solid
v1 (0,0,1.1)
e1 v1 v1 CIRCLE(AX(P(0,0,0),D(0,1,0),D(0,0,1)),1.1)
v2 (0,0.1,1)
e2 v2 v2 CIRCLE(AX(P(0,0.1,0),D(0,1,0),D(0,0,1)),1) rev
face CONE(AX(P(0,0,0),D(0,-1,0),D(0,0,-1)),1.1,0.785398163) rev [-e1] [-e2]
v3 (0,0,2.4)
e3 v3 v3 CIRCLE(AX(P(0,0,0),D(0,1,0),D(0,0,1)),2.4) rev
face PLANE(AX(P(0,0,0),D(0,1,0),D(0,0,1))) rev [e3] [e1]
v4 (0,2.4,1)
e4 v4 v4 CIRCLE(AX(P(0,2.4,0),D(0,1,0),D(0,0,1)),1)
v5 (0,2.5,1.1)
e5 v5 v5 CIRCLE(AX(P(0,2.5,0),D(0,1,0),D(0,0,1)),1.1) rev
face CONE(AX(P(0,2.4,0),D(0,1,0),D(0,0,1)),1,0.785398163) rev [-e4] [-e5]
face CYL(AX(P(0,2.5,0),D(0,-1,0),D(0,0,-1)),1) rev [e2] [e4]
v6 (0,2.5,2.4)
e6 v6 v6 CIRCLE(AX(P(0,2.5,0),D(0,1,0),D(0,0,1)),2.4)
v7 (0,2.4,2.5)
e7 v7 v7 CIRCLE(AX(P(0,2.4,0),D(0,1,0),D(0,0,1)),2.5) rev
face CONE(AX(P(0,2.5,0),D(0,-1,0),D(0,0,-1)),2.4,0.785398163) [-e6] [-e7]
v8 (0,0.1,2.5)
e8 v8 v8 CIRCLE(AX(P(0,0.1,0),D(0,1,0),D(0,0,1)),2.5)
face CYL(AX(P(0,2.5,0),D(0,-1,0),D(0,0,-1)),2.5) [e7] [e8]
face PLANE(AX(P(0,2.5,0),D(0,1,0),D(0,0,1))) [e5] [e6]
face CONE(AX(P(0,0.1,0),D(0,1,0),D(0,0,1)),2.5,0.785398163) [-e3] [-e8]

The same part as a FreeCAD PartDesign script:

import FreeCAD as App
import Part
import Sketcher

V = App.Vector
Q = App.Units.Quantity


def edges_at(feature, points):
    """Names of the edges that pass closest to the given points."""
    edges = feature.Shape.Edges
    near = lambda p: min(range(len(edges)), key=lambda i: edges[i].distToShape(Part.Vertex(*p))[0])
    return sorted({f"Edge{near(p) + 1}" for p in points})

doc = App.newDocument("Part")
params = doc.addObject("Spreadsheet::Sheet", "Params")
for row, (alias, value) in enumerate([
    ("sketch1_diameter", "5 mm"),
    ("sketch1_diameter2", "2 mm"),
    ("pad1_length", "2.5 mm"),
    ("chamfer_size", "0.1 mm"),
], start=1):
    params.set(f"A{row}", alias)
    params.set(f"B{row}", "=" + value)
    params.setAlias(f"B{row}", alias)

body = doc.addObject("PartDesign::Body", "Body")

sketch1 = body.newObject("Sketcher::SketchObject", "Sketch")
sketch1.AttachmentSupport = (doc.getObject("XZ_Plane"), [""])
sketch1.MapMode = "FlatFace"
sketch1.addGeometry(Part.Circle(V(0, 0, 0), V(0, 0, 1), 2.5), False)
sketch1.addGeometry(Part.Circle(V(0, 0, 0), V(0, 0, 1), 1), False)
sketch1.addConstraint(Sketcher.Constraint("Coincident", 0, 3, -1, 1))
sketch1.addConstraint(Sketcher.Constraint("Coincident", 1, 3, -1, 1))
sketch1.addConstraint(Sketcher.Constraint("Diameter", 0, Q("5 mm")))
sketch1.addConstraint(Sketcher.Constraint("Diameter", 1, Q("2 mm")))
sketch1.setExpression("Constraints[2]", "Params.sketch1_diameter")
sketch1.setExpression("Constraints[3]", "Params.sketch1_diameter2")
pad1 = body.newObject("PartDesign::Pad", "Pad")
pad1.Profile = sketch1
pad1.setExpression("Length", "Params.pad1_length")
pad1.Reversed = True
doc.recompute()

chamfer = body.newObject("PartDesign::Chamfer", "Chamfer")
chamfer.Base = (pad1, edges_at(pad1, [
    (-2.5, 0, 0),
    (-2.5, 2.5, 0),
    (-1, 0, 0),
    (-1, 2.5, 0),
]))
chamfer.setExpression("Size", "Params.chamfer_size")

doc.recompute()
